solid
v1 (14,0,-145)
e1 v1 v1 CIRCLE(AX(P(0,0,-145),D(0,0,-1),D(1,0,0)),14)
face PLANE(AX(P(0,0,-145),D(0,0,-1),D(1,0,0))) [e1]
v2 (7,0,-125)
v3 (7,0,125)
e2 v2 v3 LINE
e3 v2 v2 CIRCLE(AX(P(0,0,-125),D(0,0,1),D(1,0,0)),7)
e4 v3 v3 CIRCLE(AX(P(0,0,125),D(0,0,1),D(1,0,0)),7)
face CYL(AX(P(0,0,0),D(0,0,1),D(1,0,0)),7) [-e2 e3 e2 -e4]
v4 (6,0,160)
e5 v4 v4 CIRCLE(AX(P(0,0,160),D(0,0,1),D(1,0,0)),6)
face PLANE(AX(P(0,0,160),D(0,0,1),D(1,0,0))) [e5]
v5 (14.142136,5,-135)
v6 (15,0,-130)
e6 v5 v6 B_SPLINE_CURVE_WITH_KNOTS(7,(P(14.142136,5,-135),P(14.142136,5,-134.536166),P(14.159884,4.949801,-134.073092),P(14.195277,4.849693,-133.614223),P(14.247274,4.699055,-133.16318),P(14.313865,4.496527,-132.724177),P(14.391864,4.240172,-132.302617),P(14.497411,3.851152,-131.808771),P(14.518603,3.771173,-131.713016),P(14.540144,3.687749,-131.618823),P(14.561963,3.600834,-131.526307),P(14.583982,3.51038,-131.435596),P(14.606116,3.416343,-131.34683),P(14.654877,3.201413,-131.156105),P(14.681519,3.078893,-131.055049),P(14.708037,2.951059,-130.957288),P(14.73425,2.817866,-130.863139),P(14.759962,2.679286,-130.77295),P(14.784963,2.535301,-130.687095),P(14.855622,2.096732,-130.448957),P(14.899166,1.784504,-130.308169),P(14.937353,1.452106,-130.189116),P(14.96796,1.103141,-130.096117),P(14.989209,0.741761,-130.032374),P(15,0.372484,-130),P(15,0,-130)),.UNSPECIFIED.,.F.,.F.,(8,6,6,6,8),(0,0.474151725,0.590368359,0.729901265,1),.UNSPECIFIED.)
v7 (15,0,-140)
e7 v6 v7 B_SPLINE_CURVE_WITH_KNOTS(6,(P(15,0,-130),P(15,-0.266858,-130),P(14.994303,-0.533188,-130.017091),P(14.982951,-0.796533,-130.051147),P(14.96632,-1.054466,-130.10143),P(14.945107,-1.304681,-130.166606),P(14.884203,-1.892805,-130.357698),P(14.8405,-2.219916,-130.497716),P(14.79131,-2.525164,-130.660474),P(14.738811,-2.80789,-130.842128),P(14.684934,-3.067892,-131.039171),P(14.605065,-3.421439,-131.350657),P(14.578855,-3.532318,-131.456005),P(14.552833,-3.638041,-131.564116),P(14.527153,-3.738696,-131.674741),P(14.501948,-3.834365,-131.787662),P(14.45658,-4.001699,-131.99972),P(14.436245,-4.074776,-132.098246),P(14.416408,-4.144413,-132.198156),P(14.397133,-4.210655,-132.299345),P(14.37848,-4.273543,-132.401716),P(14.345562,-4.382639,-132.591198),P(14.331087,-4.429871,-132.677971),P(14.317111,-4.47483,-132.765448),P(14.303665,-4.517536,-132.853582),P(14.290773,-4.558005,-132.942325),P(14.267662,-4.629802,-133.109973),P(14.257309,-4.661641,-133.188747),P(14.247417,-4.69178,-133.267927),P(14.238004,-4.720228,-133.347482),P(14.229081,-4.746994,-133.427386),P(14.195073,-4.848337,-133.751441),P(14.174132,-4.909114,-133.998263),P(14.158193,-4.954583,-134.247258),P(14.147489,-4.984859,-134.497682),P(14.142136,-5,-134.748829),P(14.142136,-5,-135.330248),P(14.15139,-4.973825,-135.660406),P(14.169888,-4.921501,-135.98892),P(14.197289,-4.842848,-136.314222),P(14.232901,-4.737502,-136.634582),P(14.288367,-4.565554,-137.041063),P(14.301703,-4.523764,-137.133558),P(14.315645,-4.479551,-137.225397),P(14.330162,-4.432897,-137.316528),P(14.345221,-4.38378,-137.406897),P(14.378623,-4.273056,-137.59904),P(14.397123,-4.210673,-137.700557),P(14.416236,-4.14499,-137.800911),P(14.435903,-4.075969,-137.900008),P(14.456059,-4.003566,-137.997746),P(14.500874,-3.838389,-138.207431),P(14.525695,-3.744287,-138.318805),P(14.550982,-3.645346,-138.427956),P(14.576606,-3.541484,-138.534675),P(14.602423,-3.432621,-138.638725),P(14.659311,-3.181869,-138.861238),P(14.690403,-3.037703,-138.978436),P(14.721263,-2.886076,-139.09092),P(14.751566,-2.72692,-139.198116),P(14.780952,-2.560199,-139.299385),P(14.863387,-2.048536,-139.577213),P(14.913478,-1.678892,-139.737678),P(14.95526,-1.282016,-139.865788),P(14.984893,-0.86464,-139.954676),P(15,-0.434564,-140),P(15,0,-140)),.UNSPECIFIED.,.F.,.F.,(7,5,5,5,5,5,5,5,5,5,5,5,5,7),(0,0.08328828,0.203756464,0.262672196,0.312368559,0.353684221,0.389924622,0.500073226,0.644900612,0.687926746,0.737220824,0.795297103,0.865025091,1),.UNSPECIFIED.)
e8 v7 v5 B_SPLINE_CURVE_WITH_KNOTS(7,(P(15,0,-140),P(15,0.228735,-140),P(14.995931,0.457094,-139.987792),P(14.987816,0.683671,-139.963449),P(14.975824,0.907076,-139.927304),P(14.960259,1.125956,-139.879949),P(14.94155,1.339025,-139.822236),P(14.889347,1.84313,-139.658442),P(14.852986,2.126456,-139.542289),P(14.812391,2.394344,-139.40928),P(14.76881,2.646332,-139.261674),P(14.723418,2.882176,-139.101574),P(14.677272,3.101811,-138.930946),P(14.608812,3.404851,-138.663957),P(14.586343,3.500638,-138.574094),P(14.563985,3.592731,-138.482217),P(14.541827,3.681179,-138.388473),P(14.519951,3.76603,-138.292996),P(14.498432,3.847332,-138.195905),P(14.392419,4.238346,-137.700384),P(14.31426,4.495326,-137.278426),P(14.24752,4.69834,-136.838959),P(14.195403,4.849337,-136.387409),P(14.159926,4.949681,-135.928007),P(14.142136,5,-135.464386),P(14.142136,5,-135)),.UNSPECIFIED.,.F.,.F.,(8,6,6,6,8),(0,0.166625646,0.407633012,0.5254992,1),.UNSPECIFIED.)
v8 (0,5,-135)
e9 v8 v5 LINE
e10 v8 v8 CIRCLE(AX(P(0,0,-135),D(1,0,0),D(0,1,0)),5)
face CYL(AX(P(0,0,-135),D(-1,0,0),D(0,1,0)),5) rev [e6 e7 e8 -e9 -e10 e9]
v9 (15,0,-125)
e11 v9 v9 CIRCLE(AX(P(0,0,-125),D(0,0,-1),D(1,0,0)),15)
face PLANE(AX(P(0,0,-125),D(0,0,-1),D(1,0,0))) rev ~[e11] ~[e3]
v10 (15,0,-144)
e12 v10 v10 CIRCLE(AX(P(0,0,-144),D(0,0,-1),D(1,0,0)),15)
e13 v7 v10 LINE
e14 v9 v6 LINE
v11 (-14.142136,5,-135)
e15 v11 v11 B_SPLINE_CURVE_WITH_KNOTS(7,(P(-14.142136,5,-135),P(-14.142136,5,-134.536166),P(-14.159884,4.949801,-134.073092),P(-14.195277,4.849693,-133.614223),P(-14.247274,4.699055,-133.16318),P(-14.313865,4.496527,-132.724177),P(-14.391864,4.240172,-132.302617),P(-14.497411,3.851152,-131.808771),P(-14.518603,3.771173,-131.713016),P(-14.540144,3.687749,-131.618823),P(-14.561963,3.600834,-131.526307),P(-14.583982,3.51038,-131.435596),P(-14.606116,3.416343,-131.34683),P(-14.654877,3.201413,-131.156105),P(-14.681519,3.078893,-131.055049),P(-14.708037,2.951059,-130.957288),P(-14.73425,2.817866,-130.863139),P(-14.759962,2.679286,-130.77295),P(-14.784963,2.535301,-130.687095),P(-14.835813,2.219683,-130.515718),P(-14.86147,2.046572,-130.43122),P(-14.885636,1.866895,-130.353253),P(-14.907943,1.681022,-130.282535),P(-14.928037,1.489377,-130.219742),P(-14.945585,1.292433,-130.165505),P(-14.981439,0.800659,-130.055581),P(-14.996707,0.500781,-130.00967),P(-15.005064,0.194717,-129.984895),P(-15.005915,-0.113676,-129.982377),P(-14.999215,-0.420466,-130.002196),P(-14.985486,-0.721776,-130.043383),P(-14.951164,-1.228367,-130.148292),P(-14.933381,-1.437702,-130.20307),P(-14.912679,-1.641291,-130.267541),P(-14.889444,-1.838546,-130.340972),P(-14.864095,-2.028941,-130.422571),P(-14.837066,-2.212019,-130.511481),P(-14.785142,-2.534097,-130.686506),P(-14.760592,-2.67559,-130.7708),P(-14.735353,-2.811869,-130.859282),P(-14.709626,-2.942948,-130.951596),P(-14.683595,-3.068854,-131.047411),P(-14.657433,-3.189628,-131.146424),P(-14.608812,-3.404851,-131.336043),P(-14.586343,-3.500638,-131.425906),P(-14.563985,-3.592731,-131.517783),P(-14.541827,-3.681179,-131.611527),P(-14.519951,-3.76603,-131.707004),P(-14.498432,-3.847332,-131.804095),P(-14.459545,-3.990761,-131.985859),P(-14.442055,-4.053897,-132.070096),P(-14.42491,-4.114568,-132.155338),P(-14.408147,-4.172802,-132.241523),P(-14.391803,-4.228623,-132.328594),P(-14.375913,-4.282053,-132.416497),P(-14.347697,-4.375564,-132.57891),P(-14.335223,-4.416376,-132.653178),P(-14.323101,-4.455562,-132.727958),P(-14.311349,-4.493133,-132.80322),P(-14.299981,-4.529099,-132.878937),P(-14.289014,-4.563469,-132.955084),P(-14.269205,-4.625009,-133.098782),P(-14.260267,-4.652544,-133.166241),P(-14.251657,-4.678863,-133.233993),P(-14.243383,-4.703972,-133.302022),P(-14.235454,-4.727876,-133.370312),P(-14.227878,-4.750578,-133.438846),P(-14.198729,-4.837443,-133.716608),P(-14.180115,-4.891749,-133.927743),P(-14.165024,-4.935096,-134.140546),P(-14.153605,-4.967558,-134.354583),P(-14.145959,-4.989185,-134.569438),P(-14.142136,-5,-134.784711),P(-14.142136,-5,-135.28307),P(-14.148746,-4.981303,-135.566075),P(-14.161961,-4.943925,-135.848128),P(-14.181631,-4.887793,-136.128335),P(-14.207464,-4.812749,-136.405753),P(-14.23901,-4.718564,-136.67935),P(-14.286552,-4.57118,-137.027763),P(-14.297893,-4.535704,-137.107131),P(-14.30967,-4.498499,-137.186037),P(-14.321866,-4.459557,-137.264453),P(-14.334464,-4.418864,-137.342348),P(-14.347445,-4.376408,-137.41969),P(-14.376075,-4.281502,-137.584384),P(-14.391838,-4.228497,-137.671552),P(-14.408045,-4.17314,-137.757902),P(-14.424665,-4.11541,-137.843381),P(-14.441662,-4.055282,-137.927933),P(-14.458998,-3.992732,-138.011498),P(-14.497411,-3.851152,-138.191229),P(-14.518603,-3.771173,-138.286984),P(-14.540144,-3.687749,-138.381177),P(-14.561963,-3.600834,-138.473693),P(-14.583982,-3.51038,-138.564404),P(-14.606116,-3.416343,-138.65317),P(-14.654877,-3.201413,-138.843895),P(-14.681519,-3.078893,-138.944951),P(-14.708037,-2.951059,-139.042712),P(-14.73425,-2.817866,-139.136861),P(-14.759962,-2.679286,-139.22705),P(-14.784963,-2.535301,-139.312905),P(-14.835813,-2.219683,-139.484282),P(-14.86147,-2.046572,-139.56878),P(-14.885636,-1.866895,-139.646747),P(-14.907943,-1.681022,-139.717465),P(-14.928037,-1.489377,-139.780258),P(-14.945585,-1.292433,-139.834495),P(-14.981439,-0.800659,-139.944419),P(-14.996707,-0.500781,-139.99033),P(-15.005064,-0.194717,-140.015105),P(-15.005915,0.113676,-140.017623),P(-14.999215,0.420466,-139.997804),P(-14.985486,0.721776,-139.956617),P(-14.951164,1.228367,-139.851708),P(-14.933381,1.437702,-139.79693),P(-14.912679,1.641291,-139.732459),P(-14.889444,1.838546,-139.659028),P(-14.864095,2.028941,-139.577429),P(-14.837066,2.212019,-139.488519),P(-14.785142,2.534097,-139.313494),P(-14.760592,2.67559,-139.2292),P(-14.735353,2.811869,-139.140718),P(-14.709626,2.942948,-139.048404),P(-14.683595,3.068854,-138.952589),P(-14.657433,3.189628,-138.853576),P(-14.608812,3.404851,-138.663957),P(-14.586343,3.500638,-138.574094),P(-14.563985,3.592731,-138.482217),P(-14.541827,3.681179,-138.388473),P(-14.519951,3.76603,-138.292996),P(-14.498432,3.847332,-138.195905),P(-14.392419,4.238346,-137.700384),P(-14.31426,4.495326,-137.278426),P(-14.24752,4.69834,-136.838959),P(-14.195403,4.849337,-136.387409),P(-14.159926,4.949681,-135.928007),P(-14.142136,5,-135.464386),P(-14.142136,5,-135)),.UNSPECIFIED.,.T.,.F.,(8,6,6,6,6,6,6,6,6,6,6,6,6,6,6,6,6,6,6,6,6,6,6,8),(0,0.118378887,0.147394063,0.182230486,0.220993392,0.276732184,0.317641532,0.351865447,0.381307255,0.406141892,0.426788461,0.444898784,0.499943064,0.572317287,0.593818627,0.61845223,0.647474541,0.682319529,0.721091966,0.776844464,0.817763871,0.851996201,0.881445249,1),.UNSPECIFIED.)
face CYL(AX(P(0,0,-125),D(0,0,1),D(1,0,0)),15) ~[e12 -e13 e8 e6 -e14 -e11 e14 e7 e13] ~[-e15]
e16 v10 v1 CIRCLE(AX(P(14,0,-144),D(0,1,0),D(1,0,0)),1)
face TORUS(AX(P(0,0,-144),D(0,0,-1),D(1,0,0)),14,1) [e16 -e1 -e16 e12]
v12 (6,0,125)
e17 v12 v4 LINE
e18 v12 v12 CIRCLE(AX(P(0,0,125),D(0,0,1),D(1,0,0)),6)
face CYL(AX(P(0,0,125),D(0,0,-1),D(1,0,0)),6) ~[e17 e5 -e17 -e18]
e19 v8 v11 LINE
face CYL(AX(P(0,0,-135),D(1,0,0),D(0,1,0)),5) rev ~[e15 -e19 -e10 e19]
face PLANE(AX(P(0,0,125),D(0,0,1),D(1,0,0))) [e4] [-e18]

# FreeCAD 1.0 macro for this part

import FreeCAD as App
import Part
import Sketcher
from FreeCAD import Vector


def edges_at(feature, points):
    """Names of the edges that pass closest to the given points."""
    edges = feature.Shape.Edges
    near = lambda p: min(range(len(edges)), key=lambda i: edges[i].distToShape(Part.Vertex(*p))[0])
    return sorted({f"Edge{near(p) + 1}" for p in points})

doc = App.newDocument("Part")
body = doc.addObject("PartDesign::Body", "Body")

sketch1 = body.newObject("Sketcher::SketchObject", "Sketch")
sketch1.AttachmentSupport = (doc.getObject("XY_Plane"), [""])
sketch1.MapMode = "FlatFace"
sketch1.addGeometry(Part.Circle(Vector(0, 0, 0), Vector(0, 0, 1), 7), False)
sketch1.addConstraint(Sketcher.Constraint("Coincident", 0, 3, -1, 1))
sketch1.addConstraint(Sketcher.Constraint("Diameter", 0, 14.0))
pad1 = body.newObject("PartDesign::Pad", "Pad")
pad1.Profile = sketch1
pad1.Length = 250
pad1.Midplane = True

sketch2 = body.newObject("Sketcher::SketchObject", "Sketch001")
sketch2.AttachmentSupport = (doc.getObject("XY_Plane"), [""])
sketch2.MapMode = "FlatFace"
sketch2.AttachmentOffset = App.Placement(Vector(0, 0, 125), App.Rotation())
sketch2.addGeometry(Part.Circle(Vector(0, 0, 0), Vector(0, 0, 1), 6), False)
sketch2.addConstraint(Sketcher.Constraint("Coincident", 0, 3, -1, 1))
sketch2.addConstraint(Sketcher.Constraint("Diameter", 0, 12.0))
pad2 = body.newObject("PartDesign::Pad", "Pad001")
pad2.Profile = sketch2
pad2.Length = 35

sketch3 = body.newObject("Sketcher::SketchObject", "Sketch002")
sketch3.AttachmentSupport = (doc.getObject("XY_Plane"), [""])
sketch3.MapMode = "FlatFace"
sketch3.AttachmentOffset = App.Placement(Vector(0, 0, -125), App.Rotation())
sketch3.addGeometry(Part.Circle(Vector(0, 0, 0), Vector(0, 0, 1), 15), False)
sketch3.addConstraint(Sketcher.Constraint("Coincident", 0, 3, -1, 1))
sketch3.addConstraint(Sketcher.Constraint("Diameter", 0, 30.0))
pad3 = body.newObject("PartDesign::Pad", "Pad002")
pad3.Profile = sketch3
pad3.Length = 20
pad3.Reversed = True

sketch4 = body.newObject("Sketcher::SketchObject", "Sketch003")
sketch4.AttachmentSupport = (doc.getObject("YZ_Plane"), [""])
sketch4.MapMode = "FlatFace"
sketch4.addGeometry(Part.Circle(Vector(0, -135, 0), Vector(0, 0, 1), 5), False)
sketch4.addConstraint(Sketcher.Constraint("PointOnObject", 0, 3, -2))
sketch4.addConstraint(Sketcher.Constraint("Diameter", 0, 10.0))
sketch4.addConstraint(Sketcher.Constraint("DistanceY", 0, 3, -1, 1, 135.0))
pocket1 = body.newObject("PartDesign::Pocket", "Pocket")
pocket1.Profile = sketch4
pocket1.Type = "ThroughAll"
pocket1.Midplane = True
doc.recompute()

fillet = body.newObject("PartDesign::Fillet", "Fillet")
fillet.Base = (pocket1, edges_at(pocket1, [(-15, 0, -145)]))
fillet.Radius = 1

doc.recompute()
